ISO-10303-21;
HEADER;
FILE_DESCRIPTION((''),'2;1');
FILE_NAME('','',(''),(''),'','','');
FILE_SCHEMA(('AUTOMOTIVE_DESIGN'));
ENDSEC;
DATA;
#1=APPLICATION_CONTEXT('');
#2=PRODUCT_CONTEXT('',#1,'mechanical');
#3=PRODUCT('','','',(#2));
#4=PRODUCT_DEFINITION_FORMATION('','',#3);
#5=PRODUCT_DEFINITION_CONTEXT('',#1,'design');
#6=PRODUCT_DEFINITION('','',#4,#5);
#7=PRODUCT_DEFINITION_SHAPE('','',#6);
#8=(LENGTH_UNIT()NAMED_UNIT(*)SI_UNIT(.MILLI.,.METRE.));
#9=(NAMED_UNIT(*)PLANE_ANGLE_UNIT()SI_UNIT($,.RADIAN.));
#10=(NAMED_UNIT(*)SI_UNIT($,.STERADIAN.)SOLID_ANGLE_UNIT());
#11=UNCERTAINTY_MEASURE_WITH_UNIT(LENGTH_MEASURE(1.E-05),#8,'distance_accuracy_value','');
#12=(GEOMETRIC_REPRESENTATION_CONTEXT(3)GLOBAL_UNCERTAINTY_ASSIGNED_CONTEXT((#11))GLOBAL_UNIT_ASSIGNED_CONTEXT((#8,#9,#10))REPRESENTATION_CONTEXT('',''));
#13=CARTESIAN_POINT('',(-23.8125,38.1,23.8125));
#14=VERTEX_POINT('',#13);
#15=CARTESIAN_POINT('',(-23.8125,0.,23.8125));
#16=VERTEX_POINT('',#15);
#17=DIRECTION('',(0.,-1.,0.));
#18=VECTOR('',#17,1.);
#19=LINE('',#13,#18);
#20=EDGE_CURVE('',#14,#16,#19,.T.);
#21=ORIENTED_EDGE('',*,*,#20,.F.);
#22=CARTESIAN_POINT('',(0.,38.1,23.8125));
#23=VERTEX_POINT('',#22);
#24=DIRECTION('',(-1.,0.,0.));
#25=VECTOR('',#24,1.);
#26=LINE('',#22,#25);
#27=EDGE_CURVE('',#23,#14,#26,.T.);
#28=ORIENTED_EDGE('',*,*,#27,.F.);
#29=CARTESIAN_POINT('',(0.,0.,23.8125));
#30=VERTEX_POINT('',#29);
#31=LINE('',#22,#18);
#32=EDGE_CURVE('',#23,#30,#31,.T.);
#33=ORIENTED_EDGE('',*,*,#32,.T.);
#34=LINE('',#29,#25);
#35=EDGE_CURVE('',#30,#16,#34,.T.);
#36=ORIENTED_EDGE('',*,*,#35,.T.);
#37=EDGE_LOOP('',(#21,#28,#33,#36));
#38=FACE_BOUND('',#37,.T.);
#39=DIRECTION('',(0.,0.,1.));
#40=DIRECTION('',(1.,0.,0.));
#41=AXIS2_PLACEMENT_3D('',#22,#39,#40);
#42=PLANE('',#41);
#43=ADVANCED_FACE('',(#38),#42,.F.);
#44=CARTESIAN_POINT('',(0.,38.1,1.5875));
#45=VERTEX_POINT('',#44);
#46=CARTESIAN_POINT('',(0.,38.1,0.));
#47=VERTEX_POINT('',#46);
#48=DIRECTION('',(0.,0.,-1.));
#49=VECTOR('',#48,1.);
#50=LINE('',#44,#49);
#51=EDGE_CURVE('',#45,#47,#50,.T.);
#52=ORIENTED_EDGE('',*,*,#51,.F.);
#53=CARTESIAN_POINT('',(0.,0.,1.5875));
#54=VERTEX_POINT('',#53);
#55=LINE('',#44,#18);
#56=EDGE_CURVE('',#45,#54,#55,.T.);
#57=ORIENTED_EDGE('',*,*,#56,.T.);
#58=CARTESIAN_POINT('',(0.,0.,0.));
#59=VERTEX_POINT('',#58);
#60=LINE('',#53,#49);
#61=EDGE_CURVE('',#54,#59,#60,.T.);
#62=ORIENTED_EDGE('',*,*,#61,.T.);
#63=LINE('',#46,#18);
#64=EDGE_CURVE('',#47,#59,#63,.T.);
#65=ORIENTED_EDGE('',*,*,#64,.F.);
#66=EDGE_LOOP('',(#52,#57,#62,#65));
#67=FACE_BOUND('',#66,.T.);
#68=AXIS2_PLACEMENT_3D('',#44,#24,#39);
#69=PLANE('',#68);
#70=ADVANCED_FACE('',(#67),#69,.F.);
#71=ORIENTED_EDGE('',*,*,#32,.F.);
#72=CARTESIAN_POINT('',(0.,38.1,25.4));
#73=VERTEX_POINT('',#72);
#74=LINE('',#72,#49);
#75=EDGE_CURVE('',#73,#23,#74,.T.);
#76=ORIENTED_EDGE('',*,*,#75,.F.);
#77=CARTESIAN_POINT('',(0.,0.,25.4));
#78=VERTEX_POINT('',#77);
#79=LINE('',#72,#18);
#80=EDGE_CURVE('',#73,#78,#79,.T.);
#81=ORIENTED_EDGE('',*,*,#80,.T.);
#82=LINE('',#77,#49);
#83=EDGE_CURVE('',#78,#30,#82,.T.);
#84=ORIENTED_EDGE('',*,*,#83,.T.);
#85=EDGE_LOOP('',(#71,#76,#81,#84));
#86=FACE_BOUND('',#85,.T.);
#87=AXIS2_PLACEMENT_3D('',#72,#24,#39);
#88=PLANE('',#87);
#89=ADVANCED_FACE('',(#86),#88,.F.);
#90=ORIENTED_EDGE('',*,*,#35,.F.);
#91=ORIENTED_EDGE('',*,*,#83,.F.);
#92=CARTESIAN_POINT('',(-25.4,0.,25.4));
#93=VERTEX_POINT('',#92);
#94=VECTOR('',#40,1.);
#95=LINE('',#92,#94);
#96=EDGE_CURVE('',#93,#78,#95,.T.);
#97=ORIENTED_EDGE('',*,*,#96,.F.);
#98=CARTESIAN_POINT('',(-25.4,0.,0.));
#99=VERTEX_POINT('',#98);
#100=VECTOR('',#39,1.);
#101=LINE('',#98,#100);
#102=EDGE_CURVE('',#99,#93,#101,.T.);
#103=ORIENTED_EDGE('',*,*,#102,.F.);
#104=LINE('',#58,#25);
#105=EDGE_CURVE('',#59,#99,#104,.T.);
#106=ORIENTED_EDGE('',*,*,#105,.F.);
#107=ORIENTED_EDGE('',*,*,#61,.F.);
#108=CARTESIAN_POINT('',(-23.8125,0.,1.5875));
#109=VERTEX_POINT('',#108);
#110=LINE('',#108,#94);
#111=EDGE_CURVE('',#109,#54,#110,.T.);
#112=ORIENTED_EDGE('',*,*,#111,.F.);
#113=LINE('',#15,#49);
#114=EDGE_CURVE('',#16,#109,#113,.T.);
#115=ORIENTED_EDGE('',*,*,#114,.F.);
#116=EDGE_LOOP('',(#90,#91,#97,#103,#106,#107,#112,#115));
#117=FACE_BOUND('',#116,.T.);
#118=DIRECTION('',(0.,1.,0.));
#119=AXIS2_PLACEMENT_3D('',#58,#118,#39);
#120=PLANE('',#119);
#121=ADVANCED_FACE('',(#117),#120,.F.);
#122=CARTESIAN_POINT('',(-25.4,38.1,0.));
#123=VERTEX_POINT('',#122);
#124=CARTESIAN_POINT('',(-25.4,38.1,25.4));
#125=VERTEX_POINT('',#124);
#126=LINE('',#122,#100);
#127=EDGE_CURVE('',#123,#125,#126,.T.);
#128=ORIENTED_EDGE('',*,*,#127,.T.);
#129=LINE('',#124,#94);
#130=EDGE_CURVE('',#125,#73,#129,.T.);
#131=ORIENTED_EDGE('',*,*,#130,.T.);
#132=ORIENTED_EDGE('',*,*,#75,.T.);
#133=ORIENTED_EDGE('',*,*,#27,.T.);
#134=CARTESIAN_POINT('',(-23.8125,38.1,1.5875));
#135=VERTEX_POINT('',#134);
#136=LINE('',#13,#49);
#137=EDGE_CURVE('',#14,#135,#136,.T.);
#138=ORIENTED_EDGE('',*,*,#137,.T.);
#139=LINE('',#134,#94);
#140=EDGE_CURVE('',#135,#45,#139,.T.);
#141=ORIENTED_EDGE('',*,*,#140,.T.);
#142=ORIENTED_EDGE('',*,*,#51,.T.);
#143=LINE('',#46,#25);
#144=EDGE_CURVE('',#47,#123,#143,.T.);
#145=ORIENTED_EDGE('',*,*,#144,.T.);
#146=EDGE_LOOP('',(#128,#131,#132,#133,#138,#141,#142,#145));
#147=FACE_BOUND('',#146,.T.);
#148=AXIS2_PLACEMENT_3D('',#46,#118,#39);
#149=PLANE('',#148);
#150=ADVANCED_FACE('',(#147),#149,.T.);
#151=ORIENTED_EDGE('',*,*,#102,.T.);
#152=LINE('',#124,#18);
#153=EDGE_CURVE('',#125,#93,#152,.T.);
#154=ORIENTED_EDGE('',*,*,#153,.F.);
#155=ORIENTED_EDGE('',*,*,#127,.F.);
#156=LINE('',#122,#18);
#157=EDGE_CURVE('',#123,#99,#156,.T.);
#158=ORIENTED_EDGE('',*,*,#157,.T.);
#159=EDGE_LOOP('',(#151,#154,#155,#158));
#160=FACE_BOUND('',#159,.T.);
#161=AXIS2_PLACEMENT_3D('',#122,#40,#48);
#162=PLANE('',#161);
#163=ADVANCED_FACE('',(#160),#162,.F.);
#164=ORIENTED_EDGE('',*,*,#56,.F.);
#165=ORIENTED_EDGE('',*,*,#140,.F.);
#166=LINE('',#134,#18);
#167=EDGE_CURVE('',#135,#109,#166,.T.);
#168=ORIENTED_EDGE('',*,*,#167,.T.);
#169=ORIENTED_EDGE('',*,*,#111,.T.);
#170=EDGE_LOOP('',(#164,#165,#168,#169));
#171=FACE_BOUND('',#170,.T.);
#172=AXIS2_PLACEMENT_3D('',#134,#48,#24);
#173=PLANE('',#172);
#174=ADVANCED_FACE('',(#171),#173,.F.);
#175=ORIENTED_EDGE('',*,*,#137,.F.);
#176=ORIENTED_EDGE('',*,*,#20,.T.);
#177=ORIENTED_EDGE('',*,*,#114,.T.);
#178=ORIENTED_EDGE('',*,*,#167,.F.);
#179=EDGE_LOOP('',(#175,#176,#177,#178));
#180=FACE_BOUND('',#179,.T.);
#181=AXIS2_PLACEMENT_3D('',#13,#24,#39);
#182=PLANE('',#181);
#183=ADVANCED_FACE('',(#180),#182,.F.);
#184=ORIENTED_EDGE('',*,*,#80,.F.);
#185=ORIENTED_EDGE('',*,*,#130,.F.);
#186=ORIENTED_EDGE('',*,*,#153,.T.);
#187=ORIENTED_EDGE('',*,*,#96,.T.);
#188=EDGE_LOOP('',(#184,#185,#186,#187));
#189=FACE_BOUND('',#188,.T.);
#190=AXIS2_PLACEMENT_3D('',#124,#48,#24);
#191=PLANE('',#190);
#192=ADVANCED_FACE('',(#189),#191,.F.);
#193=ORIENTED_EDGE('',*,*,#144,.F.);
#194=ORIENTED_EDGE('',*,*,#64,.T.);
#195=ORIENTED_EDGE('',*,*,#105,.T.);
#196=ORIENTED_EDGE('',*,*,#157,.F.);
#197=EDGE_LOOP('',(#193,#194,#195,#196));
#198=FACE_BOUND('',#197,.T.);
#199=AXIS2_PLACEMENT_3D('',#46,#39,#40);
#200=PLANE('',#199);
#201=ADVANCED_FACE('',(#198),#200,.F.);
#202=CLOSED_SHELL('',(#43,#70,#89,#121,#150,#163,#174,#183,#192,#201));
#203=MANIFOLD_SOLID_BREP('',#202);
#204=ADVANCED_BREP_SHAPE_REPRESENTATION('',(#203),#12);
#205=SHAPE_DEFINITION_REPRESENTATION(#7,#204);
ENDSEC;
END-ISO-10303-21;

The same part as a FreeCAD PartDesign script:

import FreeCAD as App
import Part
import Sketcher
Q = App.Units.Quantity


def add_polygon(sketch, points):
    """Adds a closed chain of lines whose ends are joined by coincident constraints."""
    first, n = sketch.GeometryCount, len(points)
    for a, b in zip(points, points[1:] + points[:1]):
        sketch.addGeometry(Part.LineSegment(App.Vector(*a, 0), App.Vector(*b, 0)), False)
    for i in range(n):
        sketch.addConstraint(Sketcher.Constraint("Coincident", first + i, 2, first + (i + 1) % n, 1))

doc = App.newDocument("Part")
body = doc.addObject("PartDesign::Body", "Body")

sketch1 = body.newObject("Sketcher::SketchObject", "Sketch")
sketch1.AttachmentSupport = (doc.getObject("XZ_Plane"), [""])
sketch1.MapMode = "FlatFace"
add_polygon(sketch1, [(0, 0), (-25.4, 0), (-25.4, 25.4), (0, 25.4), (0, 23.8125), (-23.8125, 23.8125), (-23.8125, 1.5875), (0, 1.5875)])
sketch1.addConstraint(Sketcher.Constraint("Horizontal", 0))
sketch1.addConstraint(Sketcher.Constraint("Vertical", 1))
sketch1.addConstraint(Sketcher.Constraint("Horizontal", 2))
sketch1.addConstraint(Sketcher.Constraint("Vertical", 3))
sketch1.addConstraint(Sketcher.Constraint("Horizontal", 4))
sketch1.addConstraint(Sketcher.Constraint("Vertical", 5))
sketch1.addConstraint(Sketcher.Constraint("Horizontal", 6))
sketch1.addConstraint(Sketcher.Constraint("Vertical", 7))
sketch1.addConstraint(Sketcher.Constraint("Coincident", 7, 2, -1, 1))
sketch1.addConstraint(Sketcher.Constraint("PointOnObject", 2, 2, -2))
sketch1.addConstraint(Sketcher.Constraint("Equal", 2, 1))
sketch1.addConstraint(Sketcher.Constraint("Equal", 3, 7))
sketch1.addConstraint(Sketcher.Constraint("DistanceX", 0, 2, 0, 1, Q("1 in")))
sketch1.addConstraint(Sketcher.Constraint("DistanceX", 4, 2, 4, 1, Q("0.9375 in")))
sketch1.addConstraint(Sketcher.Constraint("DistanceY", 3, 2, 3, 1, Q("0.0625 in")))
pad1 = body.newObject("PartDesign::Pad", "Pad")
pad1.Profile = sketch1
pad1.Length = Q("1.5 in")
pad1.Reversed = True

doc.recompute()
